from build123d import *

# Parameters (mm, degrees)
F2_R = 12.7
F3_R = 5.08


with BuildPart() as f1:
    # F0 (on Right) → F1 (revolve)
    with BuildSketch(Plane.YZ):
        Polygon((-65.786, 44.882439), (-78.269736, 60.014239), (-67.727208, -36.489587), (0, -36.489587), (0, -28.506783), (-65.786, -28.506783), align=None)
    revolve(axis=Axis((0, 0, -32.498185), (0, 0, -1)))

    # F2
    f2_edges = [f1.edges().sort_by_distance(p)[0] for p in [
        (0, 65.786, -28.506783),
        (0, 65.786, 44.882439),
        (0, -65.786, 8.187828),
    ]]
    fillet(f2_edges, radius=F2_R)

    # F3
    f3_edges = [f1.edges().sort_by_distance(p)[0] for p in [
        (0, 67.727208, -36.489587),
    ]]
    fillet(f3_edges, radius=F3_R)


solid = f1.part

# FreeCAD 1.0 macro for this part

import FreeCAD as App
import Part
import Sketcher

V = App.Vector
Q = App.Units.Quantity


def edges_at(feature, points):
    """Names of the edges that pass closest to the given points."""
    edges = feature.Shape.Edges
    near = lambda p: min(range(len(edges)), key=lambda i: edges[i].distToShape(Part.Vertex(*p))[0])
    return sorted({f"Edge{near(p) + 1}" for p in points})


def add_polygon(sketch, points):
    """Adds a closed chain of lines whose ends are joined by coincident constraints."""
    first, n = sketch.GeometryCount, len(points)
    for a, b in zip(points, points[1:] + points[:1]):
        sketch.addGeometry(Part.LineSegment(App.Vector(*a, 0), App.Vector(*b, 0)), False)
    for i in range(n):
        sketch.addConstraint(Sketcher.Constraint("Coincident", first + i, 2, first + (i + 1) % n, 1))

doc = App.newDocument("Part")
params = doc.addObject("Spreadsheet::Sheet", "Params")
for row, (alias, value) in enumerate([
    ("sketch1_width", "2.59 in"),
    ("revolution_angle", "360 deg"),
    ("fillet_radius", "0.5 in"),
    ("fillet2_radius", "0.2 in"),
], start=1):
    params.set(f"A{row}", alias)
    params.set(f"B{row}", "=" + value)
    params.setAlias(f"B{row}", alias)

body = doc.addObject("PartDesign::Body", "Body")

sketch1 = body.newObject("Sketcher::SketchObject", "Sketch")
sketch1.AttachmentSupport = (doc.getObject("YZ_Plane"), [""])
sketch1.MapMode = "FlatFace"
add_polygon(sketch1, [(-65.786, 44.882439), (-78.269736, 60.014239), (-67.727208, -36.489587), (0, -36.489587), (0, -28.506783), (-65.786, -28.506783)])
sketch1.addConstraint([
    Sketcher.Constraint("Horizontal", 2),
    Sketcher.Constraint("Vertical", 3),
    Sketcher.Constraint("Horizontal", 4),
    Sketcher.Constraint("Vertical", 5),
    Sketcher.Constraint("PointOnObject", 2, 2, -2),
    Sketcher.Constraint("DistanceX", 4, 2, 4, 1, Q("2.59 in")),
    Sketcher.Constraint("DistanceX", 2, 1, 2, 2, 67.727208),
    Sketcher.Constraint("DistanceY", 5, 1, 5, 2, 73.389222),
    Sketcher.Constraint("DistanceY", 5, 2, 0, 2, 15.1318),
    Sketcher.Constraint("DistanceY", 3, 1, 3, 2, 7.982804),
    Sketcher.Constraint("DistanceY", -1, 1, 0, 2, 60.014239),
    Sketcher.Constraint("Distance", 0, 19.616703),
])
sketch1.setExpression("Constraints[11]", "Params.sketch1_width")
revolution = body.newObject("PartDesign::Revolution", "Revolution")
revolution.Profile = sketch1
revolution.ReferenceAxis = (sketch1, ["V_Axis"])
revolution.setExpression("Angle", "Params.revolution_angle")
doc.recompute()

fillet = body.newObject("PartDesign::Fillet", "Fillet")
fillet.Base = (revolution, edges_at(revolution, [(0, 65.786, -28.507), (0, 65.786, 44.882), (0, -65.786, 8.188)]))
fillet.setExpression("Radius", "Params.fillet_radius")
doc.recompute()

fillet2 = body.newObject("PartDesign::Fillet", "Fillet001")
fillet2.Base = (fillet, edges_at(fillet, [(0, 67.727, -36.49)]))
fillet2.setExpression("Radius", "Params.fillet2_radius")

doc.recompute()
